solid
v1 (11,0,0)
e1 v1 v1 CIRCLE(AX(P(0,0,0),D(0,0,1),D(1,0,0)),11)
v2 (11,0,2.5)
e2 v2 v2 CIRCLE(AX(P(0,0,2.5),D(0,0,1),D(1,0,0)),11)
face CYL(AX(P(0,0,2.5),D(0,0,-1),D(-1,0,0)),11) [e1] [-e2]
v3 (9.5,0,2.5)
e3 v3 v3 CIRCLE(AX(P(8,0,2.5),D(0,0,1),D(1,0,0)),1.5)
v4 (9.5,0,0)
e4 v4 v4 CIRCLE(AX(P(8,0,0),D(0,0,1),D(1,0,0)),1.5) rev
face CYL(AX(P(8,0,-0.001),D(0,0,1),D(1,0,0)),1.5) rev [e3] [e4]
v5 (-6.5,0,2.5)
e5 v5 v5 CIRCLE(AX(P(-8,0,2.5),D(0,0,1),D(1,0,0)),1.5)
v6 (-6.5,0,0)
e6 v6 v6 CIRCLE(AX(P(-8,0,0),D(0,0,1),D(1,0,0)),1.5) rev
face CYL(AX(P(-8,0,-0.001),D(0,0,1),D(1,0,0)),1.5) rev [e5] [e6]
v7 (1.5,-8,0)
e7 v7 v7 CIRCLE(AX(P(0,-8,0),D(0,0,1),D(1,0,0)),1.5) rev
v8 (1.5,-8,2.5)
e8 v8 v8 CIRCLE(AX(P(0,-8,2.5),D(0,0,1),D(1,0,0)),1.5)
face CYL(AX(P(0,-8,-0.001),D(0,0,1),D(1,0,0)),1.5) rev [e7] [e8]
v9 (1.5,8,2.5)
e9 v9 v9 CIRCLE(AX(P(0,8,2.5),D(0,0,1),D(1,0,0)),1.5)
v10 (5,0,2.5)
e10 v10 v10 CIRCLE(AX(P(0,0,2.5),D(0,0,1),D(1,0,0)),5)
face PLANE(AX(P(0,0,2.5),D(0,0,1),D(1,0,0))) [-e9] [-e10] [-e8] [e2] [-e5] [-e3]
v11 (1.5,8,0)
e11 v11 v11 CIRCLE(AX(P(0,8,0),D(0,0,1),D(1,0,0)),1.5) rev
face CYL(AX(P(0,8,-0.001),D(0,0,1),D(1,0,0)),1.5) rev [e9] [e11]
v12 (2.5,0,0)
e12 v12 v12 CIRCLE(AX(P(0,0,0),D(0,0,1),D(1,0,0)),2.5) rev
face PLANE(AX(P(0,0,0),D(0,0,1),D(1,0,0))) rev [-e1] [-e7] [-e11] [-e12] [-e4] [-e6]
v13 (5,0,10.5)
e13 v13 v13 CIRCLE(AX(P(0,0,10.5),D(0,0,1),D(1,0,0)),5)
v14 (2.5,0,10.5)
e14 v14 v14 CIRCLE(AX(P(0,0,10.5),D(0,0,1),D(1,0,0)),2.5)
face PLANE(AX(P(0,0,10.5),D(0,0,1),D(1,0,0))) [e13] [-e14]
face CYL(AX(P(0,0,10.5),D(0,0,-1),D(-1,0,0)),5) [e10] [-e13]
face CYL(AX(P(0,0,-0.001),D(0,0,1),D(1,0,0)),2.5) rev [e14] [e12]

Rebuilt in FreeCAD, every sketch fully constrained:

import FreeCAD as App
import Part
import Sketcher
Q = App.Units.Quantity

doc = App.newDocument("Part")
body = doc.addObject("PartDesign::Body", "Body")

# Sketch on XY plane
sketch1 = body.newObject("Sketcher::SketchObject", "Sketch")
sketch1.AttachmentSupport = (doc.getObject("XY_Plane"), [""])
sketch1.MapMode = "FlatFace"
sketch1.addGeometry(Part.Circle(App.Vector(0, 0, 0), App.Vector(0, 0, 1), 11), False)
sketch1.addConstraint(Sketcher.Constraint("Coincident", 0, 3, -1, 1))
sketch1.addConstraint(Sketcher.Constraint("Diameter", 0, Q("22 mm")))
pad1 = body.newObject("PartDesign::Pad", "Pad")
pad1.Profile = sketch1
pad1.Length = 2.5

# Sketch on XY plane
sketch2 = body.newObject("Sketcher::SketchObject", "Sketch001")
sketch2.AttachmentSupport = (doc.getObject("XY_Plane"), [""])
sketch2.MapMode = "FlatFace"
sketch2.AttachmentOffset = App.Placement(App.Vector(0, 0, 2.5), App.Rotation())
sketch2.addGeometry(Part.Circle(App.Vector(0, 0, 0), App.Vector(0, 0, 1), 5), False)
sketch2.addConstraint(Sketcher.Constraint("Coincident", 0, 3, -1, 1))
sketch2.addConstraint(Sketcher.Constraint("Diameter", 0, Q("10 mm")))
pad2 = body.newObject("PartDesign::Pad", "Pad001")
pad2.Profile = sketch2
pad2.Length = 8

# Sketch on XY plane
sketch3 = body.newObject("Sketcher::SketchObject", "Sketch002")
sketch3.AttachmentSupport = (doc.getObject("XY_Plane"), [""])
sketch3.MapMode = "FlatFace"
sketch3.AttachmentOffset = App.Placement(App.Vector(0, 0, 10.5), App.Rotation())
sketch3.addGeometry(Part.Circle(App.Vector(0, 0, 0), App.Vector(0, 0, 1), 2.5), False)
sketch3.addConstraint(Sketcher.Constraint("Coincident", 0, 3, -1, 1))
sketch3.addConstraint(Sketcher.Constraint("Diameter", 0, Q("5 mm")))
pocket1 = body.newObject("PartDesign::Pocket", "Pocket")
pocket1.Profile = sketch3
pocket1.Type = "UpToFirst"

# Sketch on XY plane
sketch4 = body.newObject("Sketcher::SketchObject", "Sketch003")
sketch4.AttachmentSupport = (doc.getObject("XY_Plane"), [""])
sketch4.MapMode = "FlatFace"
sketch4.AttachmentOffset = App.Placement(App.Vector(0, 0, 2.5), App.Rotation())
sketch4.addGeometry(Part.Circle(App.Vector(8, 0, 0), App.Vector(0, 0, 1), 1.5), False)
sketch4.addConstraint(Sketcher.Constraint("PointOnObject", 0, 3, -1))
sketch4.addConstraint(Sketcher.Constraint("Diameter", 0, Q("3 mm")))
sketch4.addConstraint(Sketcher.Constraint("DistanceX", -1, 1, 0, 3, Q("8 mm")))
pocket2 = body.newObject("PartDesign::Pocket", "Pocket001")
pocket2.Profile = sketch4
pocket2.Type = "UpToFirst"

# Sketch on XY plane
sketch5 = body.newObject("Sketcher::SketchObject", "Sketch004")
sketch5.AttachmentSupport = (doc.getObject("XY_Plane"), [""])
sketch5.MapMode = "FlatFace"
sketch5.AttachmentOffset = App.Placement(App.Vector(0, 0, 2.5), App.Rotation())
sketch5.addGeometry(Part.Circle(App.Vector(0, -8, 0), App.Vector(0, 0, 1), 1.5), False)
sketch5.addConstraint(Sketcher.Constraint("PointOnObject", 0, 3, -2))
sketch5.addConstraint(Sketcher.Constraint("Diameter", 0, Q("3 mm")))
sketch5.addConstraint(Sketcher.Constraint("DistanceY", 0, 3, -1, 1, Q("8 mm")))
pocket3 = body.newObject("PartDesign::Pocket", "Pocket002")
pocket3.Profile = sketch5
pocket3.Type = "UpToFirst"

# Sketch on XY plane
sketch6 = body.newObject("Sketcher::SketchObject", "Sketch005")
sketch6.AttachmentSupport = (doc.getObject("XY_Plane"), [""])
sketch6.MapMode = "FlatFace"
sketch6.AttachmentOffset = App.Placement(App.Vector(0, 0, 2.5), App.Rotation())
sketch6.addGeometry(Part.Circle(App.Vector(-8, 0, 0), App.Vector(0, 0, 1), 1.5), False)
sketch6.addConstraint(Sketcher.Constraint("PointOnObject", 0, 3, -1))
sketch6.addConstraint(Sketcher.Constraint("Diameter", 0, Q("3 mm")))
sketch6.addConstraint(Sketcher.Constraint("DistanceX", 0, 3, -1, 1, Q("8 mm")))
pocket4 = body.newObject("PartDesign::Pocket", "Pocket003")
pocket4.Profile = sketch6
pocket4.Type = "UpToFirst"

# Sketch on XY plane
sketch7 = body.newObject("Sketcher::SketchObject", "Sketch006")
sketch7.AttachmentSupport = (doc.getObject("XY_Plane"), [""])
sketch7.MapMode = "FlatFace"
sketch7.AttachmentOffset = App.Placement(App.Vector(0, 0, 2.5), App.Rotation())
sketch7.addGeometry(Part.Circle(App.Vector(0, 8, 0), App.Vector(0, 0, 1), 1.5), False)
sketch7.addConstraint(Sketcher.Constraint("PointOnObject", 0, 3, -2))
sketch7.addConstraint(Sketcher.Constraint("Diameter", 0, Q("3 mm")))
sketch7.addConstraint(Sketcher.Constraint("DistanceY", -1, 1, 0, 3, Q("8 mm")))
pocket5 = body.newObject("PartDesign::Pocket", "Pocket004")
pocket5.Profile = sketch7
pocket5.Type = "UpToFirst"

doc.recompute()
